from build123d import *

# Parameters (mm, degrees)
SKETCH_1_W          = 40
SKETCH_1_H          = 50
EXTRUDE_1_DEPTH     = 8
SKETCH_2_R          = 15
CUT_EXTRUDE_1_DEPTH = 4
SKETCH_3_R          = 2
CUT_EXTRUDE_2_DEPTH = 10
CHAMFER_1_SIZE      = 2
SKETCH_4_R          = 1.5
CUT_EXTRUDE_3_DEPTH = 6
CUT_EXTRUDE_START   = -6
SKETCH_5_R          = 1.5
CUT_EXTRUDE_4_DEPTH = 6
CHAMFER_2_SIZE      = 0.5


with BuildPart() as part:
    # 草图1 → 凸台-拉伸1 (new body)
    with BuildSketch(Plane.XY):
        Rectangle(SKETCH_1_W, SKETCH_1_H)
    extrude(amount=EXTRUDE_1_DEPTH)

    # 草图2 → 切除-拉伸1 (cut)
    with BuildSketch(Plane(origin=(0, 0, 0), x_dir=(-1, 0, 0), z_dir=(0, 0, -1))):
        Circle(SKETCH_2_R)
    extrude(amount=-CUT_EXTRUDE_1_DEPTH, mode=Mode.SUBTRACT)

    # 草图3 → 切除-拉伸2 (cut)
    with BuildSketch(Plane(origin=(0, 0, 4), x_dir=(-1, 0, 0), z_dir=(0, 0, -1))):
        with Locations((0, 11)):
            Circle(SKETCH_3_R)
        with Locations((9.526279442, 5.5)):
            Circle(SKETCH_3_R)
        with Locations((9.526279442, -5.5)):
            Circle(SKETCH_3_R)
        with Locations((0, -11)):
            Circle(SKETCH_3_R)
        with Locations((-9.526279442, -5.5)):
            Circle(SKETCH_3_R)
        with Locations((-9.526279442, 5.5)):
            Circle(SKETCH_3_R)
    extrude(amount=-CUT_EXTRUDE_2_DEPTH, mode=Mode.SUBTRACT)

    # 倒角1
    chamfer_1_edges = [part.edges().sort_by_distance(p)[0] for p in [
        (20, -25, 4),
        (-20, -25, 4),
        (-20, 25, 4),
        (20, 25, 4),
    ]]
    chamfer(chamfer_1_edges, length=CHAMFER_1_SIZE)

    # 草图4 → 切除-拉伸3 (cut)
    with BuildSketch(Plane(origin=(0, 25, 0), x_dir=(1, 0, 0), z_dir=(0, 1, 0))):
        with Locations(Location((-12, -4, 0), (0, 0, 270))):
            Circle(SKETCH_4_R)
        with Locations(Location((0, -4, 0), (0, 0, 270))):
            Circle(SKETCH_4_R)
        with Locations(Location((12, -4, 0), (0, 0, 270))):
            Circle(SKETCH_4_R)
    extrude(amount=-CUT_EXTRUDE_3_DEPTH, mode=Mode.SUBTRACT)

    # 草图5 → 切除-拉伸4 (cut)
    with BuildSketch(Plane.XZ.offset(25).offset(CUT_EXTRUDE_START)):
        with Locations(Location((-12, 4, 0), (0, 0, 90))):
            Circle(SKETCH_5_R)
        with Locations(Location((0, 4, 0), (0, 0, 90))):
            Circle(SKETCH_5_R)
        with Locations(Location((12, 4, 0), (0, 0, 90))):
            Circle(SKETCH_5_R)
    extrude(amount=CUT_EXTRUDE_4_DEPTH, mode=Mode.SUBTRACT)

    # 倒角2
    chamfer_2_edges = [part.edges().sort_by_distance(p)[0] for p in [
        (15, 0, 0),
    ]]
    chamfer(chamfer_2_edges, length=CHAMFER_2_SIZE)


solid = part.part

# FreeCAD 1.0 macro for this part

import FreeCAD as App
import Part
import Sketcher

V = App.Vector


def edges_at(feature, points):
    """Names of the edges that pass closest to the given points."""
    edges = feature.Shape.Edges
    near = lambda p: min(range(len(edges)), key=lambda i: edges[i].distToShape(Part.Vertex(*p))[0])
    return sorted({f"Edge{near(p) + 1}" for p in points})


def add_polygon(sketch, points):
    """Adds a closed chain of lines whose ends are joined by coincident constraints."""
    first, n = sketch.GeometryCount, len(points)
    for a, b in zip(points, points[1:] + points[:1]):
        sketch.addGeometry(Part.LineSegment(App.Vector(*a, 0), App.Vector(*b, 0)), False)
    for i in range(n):
        sketch.addConstraint(Sketcher.Constraint("Coincident", first + i, 2, first + (i + 1) % n, 1))

doc = App.newDocument("Part")
params = doc.addObject("Spreadsheet::Sheet", "Params")
for row, (alias, value) in enumerate([
    ("sketch1_width", "40 mm"),
    ("sketch1_height", "50 mm"),
    ("pad1_length", "8 mm"),
    ("sketch2_diameter", "30 mm"),
    ("pocket1_length", "4 mm"),
    ("sketch3_diameter", "4 mm"),
    ("pocket2_length", "10 mm"),
    ("chamfer_size", "2 mm"),
    ("sketch4_diameter", "3 mm"),
    ("pocket3_length", "6 mm"),
    ("sketch5_diameter", "3 mm"),
    ("pocket4_length", "6 mm"),
    ("chamfer2_size", "0.5 mm"),
], start=1):
    params.set(f"A{row}", alias)
    params.set(f"B{row}", "=" + value)
    params.setAlias(f"B{row}", alias)

body = doc.addObject("PartDesign::Body", "Body")

sketch1 = doc.addObject("Sketcher::SketchObject", "Sketch")
body.addObject(sketch1)
sketch1.AttachmentSupport = (doc.XY_Plane, [""])
sketch1.MapMode = "FlatFace"
add_polygon(sketch1, [(-20, 25), (-20, -25), (20, -25), (20, 25)])
sketch1.addConstraint([
    Sketcher.Constraint("Vertical", 0),
    Sketcher.Constraint("Horizontal", 1),
    Sketcher.Constraint("Vertical", 2),
    Sketcher.Constraint("Horizontal", 3),
    Sketcher.Constraint("Symmetric", 0, 2, 2, 2, -1, 1),
    Sketcher.Constraint("DistanceX", 1, 1, 1, 2, 40.0),
    Sketcher.Constraint("DistanceY", 0, 2, 0, 1, 50.0),
])
sketch1.setExpression("Constraints[9]", "Params.sketch1_width")
sketch1.setExpression("Constraints[10]", "Params.sketch1_height")
pad1 = doc.addObject("PartDesign::Pad", "Pad")
body.addObject(pad1)
pad1.Profile = sketch1
pad1.setExpression("Length", "Params.pad1_length")

sketch2 = doc.addObject("Sketcher::SketchObject", "Sketch001")
body.addObject(sketch2)
sketch2.AttachmentSupport = (doc.XY_Plane, [""])
sketch2.MapMode = "FlatFace"
sketch2.addGeometry(Part.Circle(V(0, 0, 0), V(0, 0, 1), 15), False)
sketch2.addConstraint([
    Sketcher.Constraint("Coincident", 0, 3, -1, 1),
    Sketcher.Constraint("Diameter", 0, 30.0),
])
sketch2.setExpression("Constraints[1]", "Params.sketch2_diameter")
pocket1 = doc.addObject("PartDesign::Pocket", "Pocket")
body.addObject(pocket1)
pocket1.Profile = sketch2
pocket1.setExpression("Length", "Params.pocket1_length")
pocket1.Reversed = True

sketch3 = doc.addObject("Sketcher::SketchObject", "Sketch002")
body.addObject(sketch3)
sketch3.AttachmentSupport = (doc.XY_Plane, [""])
sketch3.MapMode = "FlatFace"
sketch3.AttachmentOffset = App.Placement(V(0, 0, 4), App.Rotation())
sketch3.addGeometry([
    Part.Circle(V(0, 11, 0), V(0, 0, 1), 2),
    Part.Circle(V(-9.5, 5.5, 0), V(0, 0, 1), 2),
    Part.Circle(V(-9.5, -5.5, 0), V(0, 0, 1), 2),
    Part.Circle(V(0, -11, 0), V(0, 0, 1), 2),
    Part.Circle(V(9.5, -5.5, 0), V(0, 0, 1), 2),
    Part.Circle(V(9.5, 5.5, 0), V(0, 0, 1), 2),
], False)
sketch3.addConstraint([
    Sketcher.Constraint("Equal", 0, 1),
    Sketcher.Constraint("Equal", 1, 2),
    Sketcher.Constraint("Equal", 2, 3),
    Sketcher.Constraint("Equal", 3, 4),
    Sketcher.Constraint("Equal", 4, 5),
    Sketcher.Constraint("Symmetric", 0, 3, 3, 3, -1, 1),
    Sketcher.Constraint("Symmetric", 1, 3, 4, 3, -1, 1),
    Sketcher.Constraint("Symmetric", 2, 3, 5, 3, -1, 1),
    Sketcher.Constraint("Symmetric", 2, 3, 4, 3, -2),
    Sketcher.Constraint("PointOnObject", 0, 3, -2),
    Sketcher.Constraint("Diameter", 0, 4.0),
    Sketcher.Constraint("DistanceY", -1, 1, 0, 3, 11.0),
    Sketcher.Constraint("DistanceY", 2, 3, 1, 3, 11.0),
    Sketcher.Constraint("DistanceX", 1, 3, -1, 1, 9.526279),
])
sketch3.setExpression("Constraints[10]", "Params.sketch3_diameter")
pocket2 = doc.addObject("PartDesign::Pocket", "Pocket001")
body.addObject(pocket2)
pocket2.Profile = sketch3
pocket2.setExpression("Length", "Params.pocket2_length")
pocket2.Reversed = True
doc.recompute()

chamfer = doc.addObject("PartDesign::Chamfer", "Chamfer")
body.addObject(chamfer)
chamfer.Base = (pocket2, edges_at(pocket2, [
    (20, -25, 4),
    (-20, -25, 4),
    (-20, 25, 4),
    (20, 25, 4),
]))
chamfer.setExpression("Size", "Params.chamfer_size")

sketch4 = doc.addObject("Sketcher::SketchObject", "Sketch003")
body.addObject(sketch4)
sketch4.AttachmentSupport = (doc.XZ_Plane, [""])
sketch4.MapMode = "FlatFace"
sketch4.AttachmentOffset = App.Placement(V(0, 0, -25), App.Rotation())
sketch4.addGeometry([
    Part.Circle(V(-12, 4, 0), V(0, 0, 1), 1.5),
    Part.Circle(V(0, 4, 0), V(0, 0, 1), 1.5),
    Part.Circle(V(12, 4, 0), V(0, 0, 1), 1.5),
], False)
sketch4.addConstraint([
    Sketcher.Constraint("Equal", 0, 1),
    Sketcher.Constraint("Equal", 1, 2),
    Sketcher.Constraint("Symmetric", 0, 3, 2, 3, -2),
    Sketcher.Constraint("PointOnObject", 1, 3, -2),
    Sketcher.Constraint("Horizontal", 0, 3, 1, 3),
    Sketcher.Constraint("Diameter", 0, 3.0),
    Sketcher.Constraint("DistanceX", 0, 3, -1, 1, 12.0),
    Sketcher.Constraint("DistanceY", -1, 1, 0, 3, 4.0),
])
sketch4.setExpression("Constraints[5]", "Params.sketch4_diameter")
pocket3 = doc.addObject("PartDesign::Pocket", "Pocket002")
body.addObject(pocket3)
pocket3.Profile = sketch4
pocket3.setExpression("Length", "Params.pocket3_length")
pocket3.Reversed = True

sketch5 = doc.addObject("Sketcher::SketchObject", "Sketch004")
body.addObject(sketch5)
sketch5.AttachmentSupport = (doc.XZ_Plane, [""])
sketch5.MapMode = "FlatFace"
sketch5.AttachmentOffset = App.Placement(V(0, 0, 19), App.Rotation())
sketch5.addGeometry([
    Part.Circle(V(-12, 4, 0), V(0, 0, 1), 1.5),
    Part.Circle(V(0, 4, 0), V(0, 0, 1), 1.5),
    Part.Circle(V(12, 4, 0), V(0, 0, 1), 1.5),
], False)
sketch5.addConstraint([
    Sketcher.Constraint("Equal", 0, 1),
    Sketcher.Constraint("Equal", 1, 2),
    Sketcher.Constraint("Symmetric", 0, 3, 2, 3, -2),
    Sketcher.Constraint("PointOnObject", 1, 3, -2),
    Sketcher.Constraint("Horizontal", 0, 3, 1, 3),
    Sketcher.Constraint("Diameter", 0, 3.0),
    Sketcher.Constraint("DistanceX", 0, 3, -1, 1, 12.0),
    Sketcher.Constraint("DistanceY", -1, 1, 0, 3, 4.0),
])
sketch5.setExpression("Constraints[5]", "Params.sketch5_diameter")
pocket4 = doc.addObject("PartDesign::Pocket", "Pocket003")
body.addObject(pocket4)
pocket4.Profile = sketch5
pocket4.setExpression("Length", "Params.pocket4_length")
pocket4.Reversed = True
doc.recompute()

chamfer2 = doc.addObject("PartDesign::Chamfer", "Chamfer001")
body.addObject(chamfer2)
chamfer2.Base = (pocket4, edges_at(pocket4, [(15, 0, 0)]))
chamfer2.setExpression("Size", "Params.chamfer2_size")

doc.recompute()
